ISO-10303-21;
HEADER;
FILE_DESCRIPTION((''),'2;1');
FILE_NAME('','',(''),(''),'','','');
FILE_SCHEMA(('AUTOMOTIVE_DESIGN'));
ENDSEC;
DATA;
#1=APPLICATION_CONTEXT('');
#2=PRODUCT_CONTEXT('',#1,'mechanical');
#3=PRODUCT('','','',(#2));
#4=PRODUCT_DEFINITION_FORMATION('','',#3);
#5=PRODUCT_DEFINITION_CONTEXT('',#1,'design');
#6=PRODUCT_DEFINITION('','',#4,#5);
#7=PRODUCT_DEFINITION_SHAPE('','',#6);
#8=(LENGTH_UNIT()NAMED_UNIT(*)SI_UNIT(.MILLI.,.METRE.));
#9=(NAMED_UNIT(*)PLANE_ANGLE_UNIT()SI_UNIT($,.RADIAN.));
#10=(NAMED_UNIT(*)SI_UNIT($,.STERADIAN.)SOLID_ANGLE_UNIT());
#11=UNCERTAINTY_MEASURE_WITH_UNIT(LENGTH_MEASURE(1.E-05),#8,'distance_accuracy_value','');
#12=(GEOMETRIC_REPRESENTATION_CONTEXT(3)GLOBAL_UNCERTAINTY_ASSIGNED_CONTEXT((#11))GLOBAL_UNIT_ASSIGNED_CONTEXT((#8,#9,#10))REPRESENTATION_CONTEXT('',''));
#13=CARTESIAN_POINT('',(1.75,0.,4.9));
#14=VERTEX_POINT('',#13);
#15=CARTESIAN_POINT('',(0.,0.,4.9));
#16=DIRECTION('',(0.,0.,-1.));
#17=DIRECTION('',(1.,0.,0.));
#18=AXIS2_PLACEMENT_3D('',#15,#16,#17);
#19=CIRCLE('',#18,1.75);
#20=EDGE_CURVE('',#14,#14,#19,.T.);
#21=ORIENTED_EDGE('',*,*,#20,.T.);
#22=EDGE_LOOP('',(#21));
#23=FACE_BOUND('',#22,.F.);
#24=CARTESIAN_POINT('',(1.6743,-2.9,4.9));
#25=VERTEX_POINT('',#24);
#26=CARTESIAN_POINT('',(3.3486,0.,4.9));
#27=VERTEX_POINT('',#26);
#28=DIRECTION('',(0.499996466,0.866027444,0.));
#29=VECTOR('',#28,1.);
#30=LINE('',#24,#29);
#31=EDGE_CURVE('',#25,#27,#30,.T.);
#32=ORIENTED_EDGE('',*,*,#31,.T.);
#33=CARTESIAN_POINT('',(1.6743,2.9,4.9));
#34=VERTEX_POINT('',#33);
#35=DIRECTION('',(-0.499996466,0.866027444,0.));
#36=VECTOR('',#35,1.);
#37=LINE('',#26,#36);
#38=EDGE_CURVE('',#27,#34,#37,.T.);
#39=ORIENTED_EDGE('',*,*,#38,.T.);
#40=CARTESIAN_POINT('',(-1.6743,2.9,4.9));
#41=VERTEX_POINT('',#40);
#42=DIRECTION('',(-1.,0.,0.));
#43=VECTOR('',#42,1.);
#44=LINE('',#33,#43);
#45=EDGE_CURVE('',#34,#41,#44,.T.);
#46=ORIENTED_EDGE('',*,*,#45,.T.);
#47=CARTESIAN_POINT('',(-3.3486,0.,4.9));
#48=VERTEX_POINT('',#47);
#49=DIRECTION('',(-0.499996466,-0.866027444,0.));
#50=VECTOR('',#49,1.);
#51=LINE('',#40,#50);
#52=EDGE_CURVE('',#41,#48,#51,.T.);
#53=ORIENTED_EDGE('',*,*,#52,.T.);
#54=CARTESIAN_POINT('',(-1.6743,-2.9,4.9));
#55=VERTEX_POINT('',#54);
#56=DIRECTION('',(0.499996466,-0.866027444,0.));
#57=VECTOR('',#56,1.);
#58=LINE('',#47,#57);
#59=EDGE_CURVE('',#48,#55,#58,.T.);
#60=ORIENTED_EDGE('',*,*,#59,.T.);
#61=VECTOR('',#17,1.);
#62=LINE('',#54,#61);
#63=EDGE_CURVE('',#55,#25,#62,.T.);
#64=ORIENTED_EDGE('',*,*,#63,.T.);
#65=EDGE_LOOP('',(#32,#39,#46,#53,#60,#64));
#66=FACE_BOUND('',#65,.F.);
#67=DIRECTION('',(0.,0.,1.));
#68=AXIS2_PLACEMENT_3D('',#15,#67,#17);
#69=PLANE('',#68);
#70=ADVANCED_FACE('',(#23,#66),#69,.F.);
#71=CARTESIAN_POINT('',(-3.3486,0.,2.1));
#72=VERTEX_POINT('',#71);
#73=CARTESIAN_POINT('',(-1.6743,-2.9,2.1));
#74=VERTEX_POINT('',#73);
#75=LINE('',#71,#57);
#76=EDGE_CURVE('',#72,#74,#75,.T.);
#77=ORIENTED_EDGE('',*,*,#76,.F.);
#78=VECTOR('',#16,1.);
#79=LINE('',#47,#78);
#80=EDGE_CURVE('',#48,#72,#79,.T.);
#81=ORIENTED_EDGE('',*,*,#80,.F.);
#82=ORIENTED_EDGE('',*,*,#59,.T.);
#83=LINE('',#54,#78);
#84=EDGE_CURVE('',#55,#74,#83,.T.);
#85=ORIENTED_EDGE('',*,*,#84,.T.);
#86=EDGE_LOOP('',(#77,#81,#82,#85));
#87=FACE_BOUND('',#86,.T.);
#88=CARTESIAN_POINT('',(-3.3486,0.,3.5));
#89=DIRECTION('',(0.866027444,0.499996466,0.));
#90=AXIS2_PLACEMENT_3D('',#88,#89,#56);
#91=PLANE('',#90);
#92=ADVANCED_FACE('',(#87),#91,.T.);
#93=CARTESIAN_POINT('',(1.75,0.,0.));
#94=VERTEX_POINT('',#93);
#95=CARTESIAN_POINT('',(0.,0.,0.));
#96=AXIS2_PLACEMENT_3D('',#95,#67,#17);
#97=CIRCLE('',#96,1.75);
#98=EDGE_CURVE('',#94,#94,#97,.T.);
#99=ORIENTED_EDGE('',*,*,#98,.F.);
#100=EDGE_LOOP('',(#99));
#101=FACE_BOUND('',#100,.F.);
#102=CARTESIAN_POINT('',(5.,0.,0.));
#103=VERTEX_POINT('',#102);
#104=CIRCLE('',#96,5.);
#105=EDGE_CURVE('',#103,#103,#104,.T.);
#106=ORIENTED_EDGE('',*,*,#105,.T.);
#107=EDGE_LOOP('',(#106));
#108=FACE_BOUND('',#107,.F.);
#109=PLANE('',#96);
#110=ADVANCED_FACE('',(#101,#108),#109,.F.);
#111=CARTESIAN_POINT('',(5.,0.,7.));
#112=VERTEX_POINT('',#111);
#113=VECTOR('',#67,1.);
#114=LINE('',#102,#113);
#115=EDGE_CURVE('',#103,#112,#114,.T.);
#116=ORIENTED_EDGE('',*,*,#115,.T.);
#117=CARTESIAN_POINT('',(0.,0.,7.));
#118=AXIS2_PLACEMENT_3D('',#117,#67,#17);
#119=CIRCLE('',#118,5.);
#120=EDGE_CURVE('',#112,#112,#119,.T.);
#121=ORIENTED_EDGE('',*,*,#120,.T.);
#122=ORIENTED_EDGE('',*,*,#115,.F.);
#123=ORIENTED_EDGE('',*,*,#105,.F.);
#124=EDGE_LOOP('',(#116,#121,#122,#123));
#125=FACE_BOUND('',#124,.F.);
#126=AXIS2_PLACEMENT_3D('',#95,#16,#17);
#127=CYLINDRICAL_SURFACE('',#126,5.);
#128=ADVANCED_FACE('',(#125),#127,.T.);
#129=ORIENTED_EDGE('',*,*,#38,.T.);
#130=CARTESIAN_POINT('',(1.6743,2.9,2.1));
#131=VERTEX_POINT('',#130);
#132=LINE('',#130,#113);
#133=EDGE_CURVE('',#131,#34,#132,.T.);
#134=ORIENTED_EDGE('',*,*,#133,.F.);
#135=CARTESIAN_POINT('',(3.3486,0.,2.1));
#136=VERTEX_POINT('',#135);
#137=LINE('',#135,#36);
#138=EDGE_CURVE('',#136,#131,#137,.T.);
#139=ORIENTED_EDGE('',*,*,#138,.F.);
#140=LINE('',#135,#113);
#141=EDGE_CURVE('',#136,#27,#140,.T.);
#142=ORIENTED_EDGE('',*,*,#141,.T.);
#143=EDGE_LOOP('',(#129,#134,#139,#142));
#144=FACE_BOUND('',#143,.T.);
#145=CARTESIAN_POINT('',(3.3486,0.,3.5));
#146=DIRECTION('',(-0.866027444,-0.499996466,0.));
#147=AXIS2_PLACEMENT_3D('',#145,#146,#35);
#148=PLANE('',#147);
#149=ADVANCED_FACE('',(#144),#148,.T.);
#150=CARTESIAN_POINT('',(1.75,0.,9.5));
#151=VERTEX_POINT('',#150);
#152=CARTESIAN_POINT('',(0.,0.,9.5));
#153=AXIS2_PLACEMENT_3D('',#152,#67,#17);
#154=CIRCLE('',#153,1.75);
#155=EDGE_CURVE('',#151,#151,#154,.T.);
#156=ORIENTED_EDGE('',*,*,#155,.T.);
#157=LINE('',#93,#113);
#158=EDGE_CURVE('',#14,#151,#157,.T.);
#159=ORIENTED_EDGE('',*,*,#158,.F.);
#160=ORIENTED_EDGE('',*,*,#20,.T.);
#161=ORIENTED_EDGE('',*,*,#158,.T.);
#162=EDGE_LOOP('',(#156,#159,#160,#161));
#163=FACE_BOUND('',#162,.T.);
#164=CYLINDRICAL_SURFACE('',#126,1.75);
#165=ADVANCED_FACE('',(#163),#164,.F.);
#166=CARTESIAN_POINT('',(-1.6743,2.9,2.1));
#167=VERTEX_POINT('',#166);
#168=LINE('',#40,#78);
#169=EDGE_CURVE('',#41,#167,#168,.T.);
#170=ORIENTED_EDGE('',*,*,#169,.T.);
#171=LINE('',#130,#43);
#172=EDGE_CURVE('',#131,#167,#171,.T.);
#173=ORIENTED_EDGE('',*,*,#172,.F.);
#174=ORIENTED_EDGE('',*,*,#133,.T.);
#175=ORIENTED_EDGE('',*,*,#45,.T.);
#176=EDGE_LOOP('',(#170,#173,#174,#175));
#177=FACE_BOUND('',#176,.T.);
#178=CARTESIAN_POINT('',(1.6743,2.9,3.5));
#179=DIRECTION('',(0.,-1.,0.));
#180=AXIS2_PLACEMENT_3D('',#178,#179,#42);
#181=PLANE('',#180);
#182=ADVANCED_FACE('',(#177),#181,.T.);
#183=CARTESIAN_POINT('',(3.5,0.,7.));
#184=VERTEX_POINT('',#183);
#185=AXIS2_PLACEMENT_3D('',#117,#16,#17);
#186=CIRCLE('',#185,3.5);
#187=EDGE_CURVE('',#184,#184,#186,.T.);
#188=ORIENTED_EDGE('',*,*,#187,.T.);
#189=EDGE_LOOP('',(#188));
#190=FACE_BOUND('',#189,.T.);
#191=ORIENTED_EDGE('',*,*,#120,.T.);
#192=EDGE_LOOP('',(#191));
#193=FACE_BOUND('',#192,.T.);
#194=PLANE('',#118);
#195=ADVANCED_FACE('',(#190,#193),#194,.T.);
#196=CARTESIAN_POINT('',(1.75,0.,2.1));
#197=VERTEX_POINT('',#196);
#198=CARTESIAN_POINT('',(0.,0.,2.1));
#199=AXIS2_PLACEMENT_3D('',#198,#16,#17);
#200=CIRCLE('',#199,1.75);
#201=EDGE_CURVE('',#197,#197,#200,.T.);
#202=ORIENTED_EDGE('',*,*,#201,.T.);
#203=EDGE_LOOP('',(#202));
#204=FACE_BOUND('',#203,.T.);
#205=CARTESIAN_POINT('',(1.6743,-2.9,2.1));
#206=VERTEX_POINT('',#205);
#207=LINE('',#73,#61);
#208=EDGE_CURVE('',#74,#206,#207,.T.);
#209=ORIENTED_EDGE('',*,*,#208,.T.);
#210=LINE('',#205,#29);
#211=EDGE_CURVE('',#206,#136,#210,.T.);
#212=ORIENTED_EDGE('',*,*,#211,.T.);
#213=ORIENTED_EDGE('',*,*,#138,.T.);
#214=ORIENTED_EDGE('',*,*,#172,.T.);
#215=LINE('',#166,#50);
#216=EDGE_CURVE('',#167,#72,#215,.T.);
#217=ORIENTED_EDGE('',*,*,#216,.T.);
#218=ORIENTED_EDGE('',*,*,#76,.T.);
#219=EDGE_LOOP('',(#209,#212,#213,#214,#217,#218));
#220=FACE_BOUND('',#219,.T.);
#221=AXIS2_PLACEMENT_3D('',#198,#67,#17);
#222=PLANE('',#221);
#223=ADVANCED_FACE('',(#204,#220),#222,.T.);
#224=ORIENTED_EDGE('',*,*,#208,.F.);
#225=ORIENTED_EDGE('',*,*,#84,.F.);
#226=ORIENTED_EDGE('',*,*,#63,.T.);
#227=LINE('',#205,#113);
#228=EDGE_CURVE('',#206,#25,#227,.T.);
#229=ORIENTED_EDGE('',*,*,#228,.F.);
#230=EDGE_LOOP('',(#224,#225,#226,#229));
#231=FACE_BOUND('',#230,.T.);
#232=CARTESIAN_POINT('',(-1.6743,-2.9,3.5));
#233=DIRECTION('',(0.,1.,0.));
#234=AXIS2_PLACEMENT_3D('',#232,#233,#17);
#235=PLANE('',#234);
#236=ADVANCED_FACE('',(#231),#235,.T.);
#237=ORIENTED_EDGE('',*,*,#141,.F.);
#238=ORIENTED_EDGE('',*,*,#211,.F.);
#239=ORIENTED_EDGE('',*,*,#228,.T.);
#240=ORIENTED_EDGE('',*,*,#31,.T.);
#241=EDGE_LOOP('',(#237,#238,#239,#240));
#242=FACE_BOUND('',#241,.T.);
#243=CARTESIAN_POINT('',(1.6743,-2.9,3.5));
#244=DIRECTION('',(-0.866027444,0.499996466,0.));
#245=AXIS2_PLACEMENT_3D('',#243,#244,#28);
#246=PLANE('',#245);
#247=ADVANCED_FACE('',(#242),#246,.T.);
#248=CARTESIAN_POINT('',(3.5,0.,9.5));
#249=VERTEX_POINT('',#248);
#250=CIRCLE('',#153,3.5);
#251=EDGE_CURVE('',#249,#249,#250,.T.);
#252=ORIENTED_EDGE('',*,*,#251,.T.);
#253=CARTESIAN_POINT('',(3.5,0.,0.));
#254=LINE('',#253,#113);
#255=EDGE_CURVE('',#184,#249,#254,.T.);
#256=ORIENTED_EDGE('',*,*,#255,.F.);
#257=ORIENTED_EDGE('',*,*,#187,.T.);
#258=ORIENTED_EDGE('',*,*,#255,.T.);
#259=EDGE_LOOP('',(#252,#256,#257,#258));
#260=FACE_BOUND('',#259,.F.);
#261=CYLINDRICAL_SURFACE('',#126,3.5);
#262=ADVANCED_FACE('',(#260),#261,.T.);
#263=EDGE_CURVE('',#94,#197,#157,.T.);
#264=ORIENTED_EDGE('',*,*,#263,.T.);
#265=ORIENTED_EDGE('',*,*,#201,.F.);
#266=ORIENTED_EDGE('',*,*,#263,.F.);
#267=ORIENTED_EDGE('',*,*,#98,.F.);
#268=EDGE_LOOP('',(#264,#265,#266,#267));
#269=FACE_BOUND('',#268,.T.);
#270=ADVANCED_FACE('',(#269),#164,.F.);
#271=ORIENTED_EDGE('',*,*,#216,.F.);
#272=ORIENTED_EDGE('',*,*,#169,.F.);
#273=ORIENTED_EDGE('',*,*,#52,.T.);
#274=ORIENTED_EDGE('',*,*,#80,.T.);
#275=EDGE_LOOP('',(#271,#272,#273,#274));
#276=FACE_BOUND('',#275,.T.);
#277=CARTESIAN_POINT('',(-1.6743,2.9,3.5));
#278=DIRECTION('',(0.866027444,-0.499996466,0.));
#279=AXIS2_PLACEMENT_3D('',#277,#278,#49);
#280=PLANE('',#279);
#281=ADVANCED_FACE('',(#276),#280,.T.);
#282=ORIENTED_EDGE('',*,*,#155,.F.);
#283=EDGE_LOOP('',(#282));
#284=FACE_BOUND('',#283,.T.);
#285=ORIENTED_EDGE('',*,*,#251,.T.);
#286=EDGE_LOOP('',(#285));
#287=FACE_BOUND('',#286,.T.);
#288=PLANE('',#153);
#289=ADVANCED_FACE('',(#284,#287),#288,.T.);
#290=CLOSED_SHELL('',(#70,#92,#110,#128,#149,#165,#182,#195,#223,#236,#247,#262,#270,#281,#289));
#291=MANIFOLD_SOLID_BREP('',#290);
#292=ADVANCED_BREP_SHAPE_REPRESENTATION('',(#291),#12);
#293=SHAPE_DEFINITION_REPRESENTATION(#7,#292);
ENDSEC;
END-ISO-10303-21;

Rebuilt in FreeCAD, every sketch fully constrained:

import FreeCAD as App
import Part
import Sketcher
from FreeCAD import Vector
Q = App.Units.Quantity

doc = App.newDocument("Part")
body = doc.addObject("PartDesign::Body", "Body")

# Sketch on XY plane
sketch1 = body.newObject("Sketcher::SketchObject", "Sketch")
sketch1.AttachmentSupport = (doc.getObject("XY_Plane"), [""])
sketch1.MapMode = "FlatFace"
sketch1.addGeometry([
    Part.Circle(Vector(0, 0, 0), Vector(0, 0, 1), 5),
    Part.Circle(Vector(0, 0, 0), Vector(0, 0, 1), 1.75),
], False)
sketch1.addConstraint([
    Sketcher.Constraint("Coincident", 0, 3, -1, 1),
    Sketcher.Constraint("Coincident", 1, 3, -1, 1),
    Sketcher.Constraint("Diameter", 0, Q("10 mm")),
    Sketcher.Constraint("Diameter", 1, Q("3.5 mm")),
])
pad1 = body.newObject("PartDesign::Pad", "Pad")
pad1.Profile = sketch1
pad1.Length = 7

# Sketch on XY plane
sketch2 = body.newObject("Sketcher::SketchObject", "Sketch001")
sketch2.AttachmentSupport = (doc.getObject("XY_Plane"), [""])
sketch2.MapMode = "FlatFace"
sketch2.addGeometry([
    Part.Circle(Vector(0, 0, 0), Vector(0, 0, 1), 3.5),
    Part.Circle(Vector(0, 0, 0), Vector(0, 0, 1), 1.75),
], False)
sketch2.addConstraint([
    Sketcher.Constraint("Coincident", 0, 3, -1, 1),
    Sketcher.Constraint("Coincident", 1, 3, -1, 1),
    Sketcher.Constraint("Diameter", 0, Q("7 mm")),
    Sketcher.Constraint("Diameter", 1, Q("3.5 mm")),
])
pad2 = body.newObject("PartDesign::Pad", "Pad001")
pad2.Profile = sketch2
pad2.Length = 9.5

# Sketch on XY plane
sketch3 = body.newObject("Sketcher::SketchObject", "Sketch002")
sketch3.AttachmentSupport = (doc.getObject("XY_Plane"), [""])
sketch3.MapMode = "FlatFace"
sketch3.AttachmentOffset = App.Placement(Vector(0, 0, 3.5), App.Rotation())
sketch3.addGeometry([
    Part.LineSegment(Vector(-1.6743, -2.9, 0), Vector(1.6743, -2.9, 0)),  # 0
    Part.LineSegment(Vector(1.6743, -2.9, 0), Vector(3.3486, 0, 0)),  # 1
    Part.LineSegment(Vector(3.3486, 0, 0), Vector(1.6743, 2.9, 0)),  # 2
    Part.LineSegment(Vector(1.6743, 2.9, 0), Vector(-1.6743, 2.9, 0)),  # 3
    Part.LineSegment(Vector(-1.6743, 2.9, 0), Vector(-3.3486, 0, 0)),  # 4
    Part.LineSegment(Vector(-3.3486, 0, 0), Vector(-1.6743, -2.9, 0)),  # 5
], False)
sketch3.addConstraint([
    Sketcher.Constraint("Coincident", 0, 2, 1, 1),
    Sketcher.Constraint("Coincident", 1, 2, 2, 1),
    Sketcher.Constraint("Coincident", 2, 2, 3, 1),
    Sketcher.Constraint("Coincident", 3, 2, 4, 1),
    Sketcher.Constraint("Coincident", 4, 2, 5, 1),
    Sketcher.Constraint("Coincident", 5, 2, 0, 1),
    Sketcher.Constraint("Horizontal", 0),
    Sketcher.Constraint("Horizontal", 3),
    Sketcher.Constraint("Symmetric", 0, 2, 3, 2, -1, 1),
    Sketcher.Constraint("Symmetric", 1, 2, 4, 2, -1, 1),
    Sketcher.Constraint("PointOnObject", 1, 2, -1),
    Sketcher.Constraint("Parallel", 2, 5),
    Sketcher.Constraint("Vertical", 0, 2, 2, 2),
    Sketcher.Constraint("DistanceY", 0, 2, 2, 2, Q("5.8 mm")),
    Sketcher.Constraint("Angle", 1, Q("60.0002 deg")),
    Sketcher.Constraint("DistanceX", 0, 1, 0, 2, Q("3.3486 mm")),
])
pocket1 = body.newObject("PartDesign::Pocket", "Pocket")
pocket1.Profile = sketch3
pocket1.Length = 2.8
pocket1.Midplane = True

doc.recompute()
